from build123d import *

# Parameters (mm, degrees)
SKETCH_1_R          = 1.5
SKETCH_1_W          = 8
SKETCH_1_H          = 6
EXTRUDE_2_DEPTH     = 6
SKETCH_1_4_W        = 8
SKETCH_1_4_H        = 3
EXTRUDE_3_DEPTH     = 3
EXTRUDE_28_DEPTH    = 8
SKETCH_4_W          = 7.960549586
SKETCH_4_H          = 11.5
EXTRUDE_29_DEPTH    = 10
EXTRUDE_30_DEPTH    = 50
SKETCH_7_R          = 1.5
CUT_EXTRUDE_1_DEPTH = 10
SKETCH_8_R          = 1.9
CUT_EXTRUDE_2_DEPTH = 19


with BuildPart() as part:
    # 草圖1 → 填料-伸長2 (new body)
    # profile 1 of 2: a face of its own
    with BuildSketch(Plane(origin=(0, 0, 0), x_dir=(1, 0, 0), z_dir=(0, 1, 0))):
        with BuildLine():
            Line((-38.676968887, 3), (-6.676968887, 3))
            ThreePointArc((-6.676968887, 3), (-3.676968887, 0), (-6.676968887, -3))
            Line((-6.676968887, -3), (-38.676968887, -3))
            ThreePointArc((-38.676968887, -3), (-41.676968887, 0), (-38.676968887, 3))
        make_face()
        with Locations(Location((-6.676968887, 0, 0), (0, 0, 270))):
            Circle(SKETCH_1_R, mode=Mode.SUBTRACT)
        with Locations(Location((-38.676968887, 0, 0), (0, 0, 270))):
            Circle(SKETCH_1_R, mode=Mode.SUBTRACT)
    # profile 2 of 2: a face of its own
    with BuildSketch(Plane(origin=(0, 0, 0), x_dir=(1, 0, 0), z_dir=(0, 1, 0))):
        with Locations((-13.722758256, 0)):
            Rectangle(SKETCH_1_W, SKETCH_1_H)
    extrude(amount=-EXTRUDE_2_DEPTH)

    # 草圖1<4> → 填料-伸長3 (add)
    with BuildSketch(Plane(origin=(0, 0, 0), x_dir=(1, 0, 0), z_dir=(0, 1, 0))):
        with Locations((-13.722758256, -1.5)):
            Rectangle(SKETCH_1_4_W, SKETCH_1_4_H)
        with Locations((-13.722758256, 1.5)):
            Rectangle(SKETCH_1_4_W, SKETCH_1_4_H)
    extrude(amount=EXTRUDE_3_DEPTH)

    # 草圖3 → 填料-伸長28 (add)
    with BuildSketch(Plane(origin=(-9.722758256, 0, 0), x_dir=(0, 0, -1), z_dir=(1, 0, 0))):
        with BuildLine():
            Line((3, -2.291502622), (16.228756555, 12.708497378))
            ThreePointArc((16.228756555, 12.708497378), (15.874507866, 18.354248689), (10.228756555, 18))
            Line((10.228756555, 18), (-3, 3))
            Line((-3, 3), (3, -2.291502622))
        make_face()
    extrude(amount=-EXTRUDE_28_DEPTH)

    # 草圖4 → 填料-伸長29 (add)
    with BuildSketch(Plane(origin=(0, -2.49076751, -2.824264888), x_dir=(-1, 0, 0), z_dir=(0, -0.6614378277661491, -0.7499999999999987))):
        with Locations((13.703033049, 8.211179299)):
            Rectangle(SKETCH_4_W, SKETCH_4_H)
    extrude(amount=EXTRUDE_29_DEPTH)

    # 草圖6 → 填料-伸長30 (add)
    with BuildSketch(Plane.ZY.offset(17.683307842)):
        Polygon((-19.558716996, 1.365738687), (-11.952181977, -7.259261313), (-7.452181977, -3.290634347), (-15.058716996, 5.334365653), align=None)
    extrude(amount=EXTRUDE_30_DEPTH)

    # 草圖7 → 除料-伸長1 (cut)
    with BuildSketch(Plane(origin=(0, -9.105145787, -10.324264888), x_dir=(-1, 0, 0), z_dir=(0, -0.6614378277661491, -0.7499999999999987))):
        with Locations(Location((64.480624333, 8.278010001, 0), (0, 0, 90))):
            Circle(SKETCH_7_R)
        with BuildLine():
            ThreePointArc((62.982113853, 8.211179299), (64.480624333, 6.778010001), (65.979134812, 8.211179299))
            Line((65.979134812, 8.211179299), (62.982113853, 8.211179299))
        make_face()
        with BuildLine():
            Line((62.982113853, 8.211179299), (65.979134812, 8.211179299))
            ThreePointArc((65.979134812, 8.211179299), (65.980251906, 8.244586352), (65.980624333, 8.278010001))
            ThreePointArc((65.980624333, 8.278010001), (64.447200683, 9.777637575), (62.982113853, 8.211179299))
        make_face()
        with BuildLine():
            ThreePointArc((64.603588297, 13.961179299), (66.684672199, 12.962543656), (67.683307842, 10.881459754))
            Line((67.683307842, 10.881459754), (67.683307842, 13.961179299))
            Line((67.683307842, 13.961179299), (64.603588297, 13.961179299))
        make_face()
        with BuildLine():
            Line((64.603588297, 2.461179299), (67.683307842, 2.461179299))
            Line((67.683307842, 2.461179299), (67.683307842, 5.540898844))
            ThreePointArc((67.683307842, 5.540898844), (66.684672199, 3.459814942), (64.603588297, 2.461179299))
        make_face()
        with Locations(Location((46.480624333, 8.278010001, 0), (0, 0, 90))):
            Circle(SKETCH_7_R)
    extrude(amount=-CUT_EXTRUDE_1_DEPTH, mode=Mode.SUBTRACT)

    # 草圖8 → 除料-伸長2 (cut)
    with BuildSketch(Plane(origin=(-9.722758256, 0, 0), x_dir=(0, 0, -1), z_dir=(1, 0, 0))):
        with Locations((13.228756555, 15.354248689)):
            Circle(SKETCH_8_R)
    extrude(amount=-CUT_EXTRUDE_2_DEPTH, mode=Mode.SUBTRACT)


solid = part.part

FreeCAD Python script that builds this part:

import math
import FreeCAD as App
import Part
import Sketcher

doc = App.newDocument("Part")
params = doc.addObject("Spreadsheet::Sheet", "Params")
for row, (alias, value) in enumerate([
    ("sketch1_diameter", "3 mm"),
    ("sketch1_radius", "3 mm"),
    ("sketch1_width", "32 mm"),
    ("pad1_length", "6 mm"),
    ("sketch2_width", "8 mm"),
    ("sketch2_height", "6 mm"),
    ("pad2_length", "3 mm"),
    ("sketch3_radius", "4 mm"),
    ("sketch3_length", "20 mm"),
    ("pad3_length", "8 mm"),
    ("sketch4_height", "11.5 mm"),
    ("pad4_length", "10 mm"),
    ("sketch5_length", "6 mm"),
    ("sketch5_length2", "11.5 mm"),
    ("pad5_length", "50 mm"),
    ("sketch6_diameter", "3 mm"),
    ("pocket1_length", "10 mm"),
    ("sketch7_diameter", "3.8 mm"),
    ("pocket2_length", "19 mm"),
], start=1):
    params.set(f"A{row}", alias)
    params.set(f"B{row}", "=" + value)
    params.setAlias(f"B{row}", alias)

body = doc.addObject("PartDesign::Body", "Body")

# Sketch on XZ plane
sketch1 = body.newObject("Sketcher::SketchObject", "Sketch")
sketch1.AttachmentSupport = (doc.getObject("XZ_Plane"), [""])
sketch1.MapMode = "FlatFace"
sketch1.addGeometry([
    Part.ArcOfCircle(Part.Circle(App.Vector(-38.7, 0, 0), App.Vector(0, 0, 1), 3), math.radians(90), math.radians(270)),  # 0
    Part.LineSegment(App.Vector(-38.7, 3, 0), App.Vector(-6.7, 3, 0)),  # 1
    Part.ArcOfCircle(Part.Circle(App.Vector(-6.7, 0, 0), App.Vector(0, 0, 1), 3), math.radians(-90), math.radians(90)),  # 2
    Part.LineSegment(App.Vector(-6.7, -3, 0), App.Vector(-38.7, -3, 0)),  # 3
    Part.Circle(App.Vector(-38.7, 0, 0), App.Vector(0, 0, 1), 1.5),  # 4
    Part.Circle(App.Vector(-6.7, 0, 0), App.Vector(0, 0, 1), 1.5),  # 5
], False)
sketch1.addConstraint([
    Sketcher.Constraint("Tangent", 0, 1, 1, 1),
    Sketcher.Constraint("Tangent", 1, 2, 2, 2),
    Sketcher.Constraint("Tangent", 2, 1, 3, 1),
    Sketcher.Constraint("Tangent", 3, 2, 0, 2),
    Sketcher.Constraint("Horizontal", 1),
    Sketcher.Constraint("Horizontal", 3),
    Sketcher.Constraint("Coincident", 4, 3, 0, 3),
    Sketcher.Constraint("Coincident", 5, 3, 2, 3),
    Sketcher.Constraint("Equal", 4, 5),
    Sketcher.Constraint("PointOnObject", 0, 3, -1),
    Sketcher.Constraint("Diameter", 4, 3.0),
    Sketcher.Constraint("Radius", 0, 3.0),
    Sketcher.Constraint("DistanceX", 1, 1, 1, 2, 32.0),
    Sketcher.Constraint("DistanceX", 0, 3, -1, 1, 38.676969),
])
sketch1.setExpression("Constraints[10]", "Params.sketch1_diameter")
sketch1.setExpression("Constraints[11]", "Params.sketch1_radius")
sketch1.setExpression("Constraints[12]", "Params.sketch1_width")
pad1 = body.newObject("PartDesign::Pad", "Pad")
pad1.Profile = sketch1
pad1.setExpression("Length", "Params.pad1_length")

# Sketch on XZ plane
sketch2 = body.newObject("Sketcher::SketchObject", "Sketch001")
sketch2.AttachmentSupport = (doc.getObject("XZ_Plane"), [""])
sketch2.MapMode = "FlatFace"
sketch2.addGeometry([
    Part.LineSegment(App.Vector(-18, 3, 0), App.Vector(-10, 3, 0)),
    Part.LineSegment(App.Vector(-10, 3, 0), App.Vector(-10, -3, 0)),
    Part.LineSegment(App.Vector(-10, -3, 0), App.Vector(-18, -3, 0)),
    Part.LineSegment(App.Vector(-18, -3, 0), App.Vector(-18, 3, 0)),
], False)
sketch2.addConstraint([
    Sketcher.Constraint("Coincident", 0, 2, 1, 1),
    Sketcher.Constraint("Coincident", 1, 2, 2, 1),
    Sketcher.Constraint("Coincident", 2, 2, 3, 1),
    Sketcher.Constraint("Coincident", 3, 2, 0, 1),
    Sketcher.Constraint("Horizontal", 0),
    Sketcher.Constraint("Vertical", 1),
    Sketcher.Constraint("Horizontal", 2),
    Sketcher.Constraint("Vertical", 3),
    Sketcher.Constraint("DistanceX", 0, 1, 0, 2, 8.0),
    Sketcher.Constraint("DistanceY", 1, 2, 1, 1, 6.0),
    Sketcher.Constraint("DistanceY", -1, 1, 0, 2, 3.0),
    Sketcher.Constraint("DistanceX", 0, 2, -1, 1, 9.722758),
])
sketch2.setExpression("Constraints[8]", "Params.sketch2_width")
sketch2.setExpression("Constraints[9]", "Params.sketch2_height")
pad2 = body.newObject("PartDesign::Pad", "Pad001")
pad2.Profile = sketch2
pad2.setExpression("Length", "Params.pad2_length")
pad2.Reversed = True

# Sketch on YZ plane
sketch3 = body.newObject("Sketcher::SketchObject", "Sketch002")
sketch3.AttachmentSupport = (doc.getObject("YZ_Plane"), [""])
sketch3.MapMode = "FlatFace"
sketch3.AttachmentOffset = App.Placement(App.Vector(0, 0, -9.722758), App.Rotation())
sketch3.addGeometry([
    Part.LineSegment(App.Vector(-2.3, -3, 0), App.Vector(12.7, -16.2, 0)),
    Part.ArcOfCircle(Part.Circle(App.Vector(15.4, -13.2, 0), App.Vector(0, 0, 1), 4), math.radians(-131), math.radians(49)),
    Part.LineSegment(App.Vector(18, -10.2, 0), App.Vector(3, 3, 0)),
    Part.LineSegment(App.Vector(3, 3, 0), App.Vector(-2.3, -3, 0)),
], False)
sketch3.addConstraint([
    Sketcher.Constraint("Tangent", 0, 2, 1, 1),
    Sketcher.Constraint("Tangent", 1, 2, 2, 1),
    Sketcher.Constraint("Coincident", 2, 2, 3, 1),
    Sketcher.Constraint("Coincident", 3, 2, 0, 1),
    Sketcher.Constraint("Parallel", 0, 2),
    Sketcher.Constraint("Perpendicular", 2, 3),
    Sketcher.Constraint("Radius", 1, 4.0),
    Sketcher.Constraint("Distance", 0, 20.0),
    Sketcher.Constraint("DistanceX", -1, 1, 1, 2, 18.0),
    Sketcher.Constraint("DistanceX", -1, 1, 2, 2, 3.0),
    Sketcher.Constraint("DistanceY", -1, 1, 2, 2, 3.0),
])
sketch3.setExpression("Constraints[6]", "Params.sketch3_radius")
sketch3.setExpression("Constraints[7]", "Params.sketch3_length")
pad3 = body.newObject("PartDesign::Pad", "Pad002")
pad3.Profile = sketch3
pad3.setExpression("Length", "Params.pad3_length")
pad3.Reversed = True

# Sketch on an angled plane
sketch4 = body.newObject("Sketcher::SketchObject", "Sketch003")
sketch4.Placement = App.Placement(App.Vector(0, -2.490768, -2.824265), App.Rotation(App.Vector(-1, 0, 0), App.Vector(0, 0.75, -0.661437828), App.Vector(0, -0.661437828, -0.75), "ZXY"))
sketch4.addGeometry([
    Part.LineSegment(App.Vector(10, 14, 0), App.Vector(10, 2, 0)),
    Part.LineSegment(App.Vector(10, 2, 0), App.Vector(18, 2, 0)),
    Part.LineSegment(App.Vector(18, 2, 0), App.Vector(18, 14, 0)),
    Part.LineSegment(App.Vector(18, 14, 0), App.Vector(10, 14, 0)),
], False)
sketch4.addConstraint([
    Sketcher.Constraint("Coincident", 0, 2, 1, 1),
    Sketcher.Constraint("Coincident", 1, 2, 2, 1),
    Sketcher.Constraint("Coincident", 2, 2, 3, 1),
    Sketcher.Constraint("Coincident", 3, 2, 0, 1),
    Sketcher.Constraint("Vertical", 0),
    Sketcher.Constraint("Horizontal", 1),
    Sketcher.Constraint("Vertical", 2),
    Sketcher.Constraint("Horizontal", 3),
    Sketcher.Constraint("DistanceY", 0, 2, 0, 1, 11.5),
    Sketcher.Constraint("DistanceX", 1, 1, 1, 2, 7.96055),
    Sketcher.Constraint("DistanceX", -1, 1, 0, 2, 9.722758),
    Sketcher.Constraint("DistanceY", -1, 1, 0, 2, 2.461179),
])
sketch4.setExpression("Constraints[8]", "Params.sketch4_height")
pad4 = body.newObject("PartDesign::Pad", "Pad003")
pad4.Profile = sketch4
pad4.setExpression("Length", "Params.pad4_length")

# Sketch on YZ plane
sketch5 = body.newObject("Sketcher::SketchObject", "Sketch004")
sketch5.AttachmentSupport = (doc.getObject("YZ_Plane"), [""])
sketch5.MapMode = "FlatFace"
sketch5.AttachmentOffset = App.Placement(App.Vector(0, 0, -17.683308), App.Rotation())
sketch5.addGeometry([
    Part.LineSegment(App.Vector(1, -20, 0), App.Vector(-7, -12, 0)),
    Part.LineSegment(App.Vector(-7, -12, 0), App.Vector(-3, -7, 0)),
    Part.LineSegment(App.Vector(-3, -7, 0), App.Vector(5, -15, 0)),
    Part.LineSegment(App.Vector(5, -15, 0), App.Vector(1, -20, 0)),
], False)
sketch5.addConstraint([
    Sketcher.Constraint("Coincident", 0, 2, 1, 1),
    Sketcher.Constraint("Coincident", 1, 2, 2, 1),
    Sketcher.Constraint("Coincident", 2, 2, 3, 1),
    Sketcher.Constraint("Coincident", 3, 2, 0, 1),
    Sketcher.Constraint("Perpendicular", 0, 1),
    Sketcher.Constraint("Perpendicular", 1, 2),
    Sketcher.Constraint("Perpendicular", 2, 3),
    Sketcher.Constraint("Distance", 1, 6.0),
    Sketcher.Constraint("Distance", 0, 11.5),
    Sketcher.Constraint("DistanceY", 0, 2, 1, 2, 4.5),
    Sketcher.Constraint("DistanceX", 0, 2, -1, 1, 7.259261),
    Sketcher.Constraint("DistanceY", 0, 2, -1, 1, 11.952182),
])
sketch5.setExpression("Constraints[7]", "Params.sketch5_length")
sketch5.setExpression("Constraints[8]", "Params.sketch5_length2")
pad5 = body.newObject("PartDesign::Pad", "Pad004")
pad5.Profile = sketch5
pad5.setExpression("Length", "Params.pad5_length")
pad5.Reversed = True

# Sketch on an angled plane
sketch6 = body.newObject("Sketcher::SketchObject", "Sketch005")
sketch6.Placement = App.Placement(App.Vector(0, -9.105146, -10.324265), App.Rotation(App.Vector(-1, 0, 0), App.Vector(0, 0.75, -0.661437828), App.Vector(0, -0.661437828, -0.75), "ZXY"))
sketch6.addGeometry([
    Part.ArcOfCircle(Part.Circle(App.Vector(64.5, 8.3, 0), App.Vector(0, 0, 1), 1.5), math.radians(-177), math.radians(-3)),  # 0
    Part.ArcOfCircle(Part.Circle(App.Vector(64.5, 8.3, 0), App.Vector(0, 0, 1), 1.5), math.radians(-3), math.radians(183)),  # 1
    Part.ArcOfCircle(Part.Circle(App.Vector(64.2, 10.5, 0), App.Vector(0, 0, 1), 3.5), math.radians(6), math.radians(84)),  # 2
    Part.LineSegment(App.Vector(67.7, 10.9, 0), App.Vector(67.7, 14, 0)),  # 3
    Part.LineSegment(App.Vector(67.7, 14, 0), App.Vector(64.6, 14, 0)),  # 4
    Part.LineSegment(App.Vector(64.6, 2.5, 0), App.Vector(67.7, 2.5, 0)),  # 5
    Part.LineSegment(App.Vector(67.7, 2.5, 0), App.Vector(67.7, 5.5, 0)),  # 6
    Part.ArcOfCircle(Part.Circle(App.Vector(64.2, 5.9, 0), App.Vector(0, 0, 1), 3.5), math.radians(-84), math.radians(-6)),  # 7
    Part.Circle(App.Vector(46.5, 8.3, 0), App.Vector(0, 0, 1), 1.5),  # 8
], False)
sketch6.addConstraint([
    Sketcher.Constraint("Tangent", 0, 1, 1, 2),
    Sketcher.Constraint("Coincident", 1, 1, 0, 2),
    Sketcher.Constraint("Coincident", 2, 1, 3, 1),
    Sketcher.Constraint("Coincident", 3, 2, 4, 1),
    Sketcher.Constraint("Coincident", 4, 2, 2, 2),
    Sketcher.Constraint("Coincident", 5, 2, 6, 1),
    Sketcher.Constraint("Coincident", 6, 2, 7, 2),
    Sketcher.Constraint("Coincident", 7, 1, 5, 1),
    Sketcher.Constraint("Vertical", 3),
    Sketcher.Constraint("Horizontal", 4),
    Sketcher.Constraint("Horizontal", 5),
    Sketcher.Constraint("Vertical", 6),
    Sketcher.Constraint("Equal", 2, 7),
    Sketcher.Constraint("Equal", 1, 8),
    Sketcher.Constraint("Horizontal", 1, 3, 8, 3),
    Sketcher.Constraint("Horizontal", 0, 1, 1, 1),
    Sketcher.Constraint("Vertical", 2, 3, 7, 3),
    Sketcher.Constraint("Vertical", 3, 2, 5, 2),
    Sketcher.Constraint("Vertical", 4, 2, 7, 1),
    Sketcher.Constraint("Equal", 5, 3),
    Sketcher.Constraint("Diameter", 8, 3.0),
    Sketcher.Constraint("DistanceX", 8, 3, 0, 3, 18.0),
    Sketcher.Constraint("DistanceY", 1, 1, 3, 2, 5.75),
    Sketcher.Constraint("DistanceY", 5, 2, 1, 1, 5.75),
    Sketcher.Constraint("Radius", 2, 3.480623),
    Sketcher.Constraint("DistanceX", 4, 2, 4, 1, 3.07972),
    Sketcher.Constraint("DistanceX", -1, 1, 2, 3, 64.2235),
    Sketcher.Constraint("DistanceY", -1, 1, 6, 2, 5.540899),
    Sketcher.Constraint("DistanceY", -1, 1, 0, 3, 8.27801),
    Sketcher.Constraint("DistanceX", -1, 1, 0, 3, 64.480624),
])
sketch6.setExpression("Constraints[20]", "Params.sketch6_diameter")
pocket1 = body.newObject("PartDesign::Pocket", "Pocket")
pocket1.Profile = sketch6
pocket1.setExpression("Length", "Params.pocket1_length")

# Sketch on YZ plane
sketch7 = body.newObject("Sketcher::SketchObject", "Sketch006")
sketch7.AttachmentSupport = (doc.getObject("YZ_Plane"), [""])
sketch7.MapMode = "FlatFace"
sketch7.AttachmentOffset = App.Placement(App.Vector(0, 0, -9.722758), App.Rotation())
sketch7.addGeometry(Part.Circle(App.Vector(15.4, -13.2, 0), App.Vector(0, 0, 1), 1.9), False)
sketch7.addConstraint([
    Sketcher.Constraint("Diameter", 0, 3.8),
    Sketcher.Constraint("DistanceX", -1, 1, 0, 3, 15.354249),
    Sketcher.Constraint("DistanceY", 0, 3, -1, 1, 13.228757),
])
sketch7.setExpression("Constraints[0]", "Params.sketch7_diameter")
pocket2 = body.newObject("PartDesign::Pocket", "Pocket001")
pocket2.Profile = sketch7
pocket2.setExpression("Length", "Params.pocket2_length")

doc.recompute()
